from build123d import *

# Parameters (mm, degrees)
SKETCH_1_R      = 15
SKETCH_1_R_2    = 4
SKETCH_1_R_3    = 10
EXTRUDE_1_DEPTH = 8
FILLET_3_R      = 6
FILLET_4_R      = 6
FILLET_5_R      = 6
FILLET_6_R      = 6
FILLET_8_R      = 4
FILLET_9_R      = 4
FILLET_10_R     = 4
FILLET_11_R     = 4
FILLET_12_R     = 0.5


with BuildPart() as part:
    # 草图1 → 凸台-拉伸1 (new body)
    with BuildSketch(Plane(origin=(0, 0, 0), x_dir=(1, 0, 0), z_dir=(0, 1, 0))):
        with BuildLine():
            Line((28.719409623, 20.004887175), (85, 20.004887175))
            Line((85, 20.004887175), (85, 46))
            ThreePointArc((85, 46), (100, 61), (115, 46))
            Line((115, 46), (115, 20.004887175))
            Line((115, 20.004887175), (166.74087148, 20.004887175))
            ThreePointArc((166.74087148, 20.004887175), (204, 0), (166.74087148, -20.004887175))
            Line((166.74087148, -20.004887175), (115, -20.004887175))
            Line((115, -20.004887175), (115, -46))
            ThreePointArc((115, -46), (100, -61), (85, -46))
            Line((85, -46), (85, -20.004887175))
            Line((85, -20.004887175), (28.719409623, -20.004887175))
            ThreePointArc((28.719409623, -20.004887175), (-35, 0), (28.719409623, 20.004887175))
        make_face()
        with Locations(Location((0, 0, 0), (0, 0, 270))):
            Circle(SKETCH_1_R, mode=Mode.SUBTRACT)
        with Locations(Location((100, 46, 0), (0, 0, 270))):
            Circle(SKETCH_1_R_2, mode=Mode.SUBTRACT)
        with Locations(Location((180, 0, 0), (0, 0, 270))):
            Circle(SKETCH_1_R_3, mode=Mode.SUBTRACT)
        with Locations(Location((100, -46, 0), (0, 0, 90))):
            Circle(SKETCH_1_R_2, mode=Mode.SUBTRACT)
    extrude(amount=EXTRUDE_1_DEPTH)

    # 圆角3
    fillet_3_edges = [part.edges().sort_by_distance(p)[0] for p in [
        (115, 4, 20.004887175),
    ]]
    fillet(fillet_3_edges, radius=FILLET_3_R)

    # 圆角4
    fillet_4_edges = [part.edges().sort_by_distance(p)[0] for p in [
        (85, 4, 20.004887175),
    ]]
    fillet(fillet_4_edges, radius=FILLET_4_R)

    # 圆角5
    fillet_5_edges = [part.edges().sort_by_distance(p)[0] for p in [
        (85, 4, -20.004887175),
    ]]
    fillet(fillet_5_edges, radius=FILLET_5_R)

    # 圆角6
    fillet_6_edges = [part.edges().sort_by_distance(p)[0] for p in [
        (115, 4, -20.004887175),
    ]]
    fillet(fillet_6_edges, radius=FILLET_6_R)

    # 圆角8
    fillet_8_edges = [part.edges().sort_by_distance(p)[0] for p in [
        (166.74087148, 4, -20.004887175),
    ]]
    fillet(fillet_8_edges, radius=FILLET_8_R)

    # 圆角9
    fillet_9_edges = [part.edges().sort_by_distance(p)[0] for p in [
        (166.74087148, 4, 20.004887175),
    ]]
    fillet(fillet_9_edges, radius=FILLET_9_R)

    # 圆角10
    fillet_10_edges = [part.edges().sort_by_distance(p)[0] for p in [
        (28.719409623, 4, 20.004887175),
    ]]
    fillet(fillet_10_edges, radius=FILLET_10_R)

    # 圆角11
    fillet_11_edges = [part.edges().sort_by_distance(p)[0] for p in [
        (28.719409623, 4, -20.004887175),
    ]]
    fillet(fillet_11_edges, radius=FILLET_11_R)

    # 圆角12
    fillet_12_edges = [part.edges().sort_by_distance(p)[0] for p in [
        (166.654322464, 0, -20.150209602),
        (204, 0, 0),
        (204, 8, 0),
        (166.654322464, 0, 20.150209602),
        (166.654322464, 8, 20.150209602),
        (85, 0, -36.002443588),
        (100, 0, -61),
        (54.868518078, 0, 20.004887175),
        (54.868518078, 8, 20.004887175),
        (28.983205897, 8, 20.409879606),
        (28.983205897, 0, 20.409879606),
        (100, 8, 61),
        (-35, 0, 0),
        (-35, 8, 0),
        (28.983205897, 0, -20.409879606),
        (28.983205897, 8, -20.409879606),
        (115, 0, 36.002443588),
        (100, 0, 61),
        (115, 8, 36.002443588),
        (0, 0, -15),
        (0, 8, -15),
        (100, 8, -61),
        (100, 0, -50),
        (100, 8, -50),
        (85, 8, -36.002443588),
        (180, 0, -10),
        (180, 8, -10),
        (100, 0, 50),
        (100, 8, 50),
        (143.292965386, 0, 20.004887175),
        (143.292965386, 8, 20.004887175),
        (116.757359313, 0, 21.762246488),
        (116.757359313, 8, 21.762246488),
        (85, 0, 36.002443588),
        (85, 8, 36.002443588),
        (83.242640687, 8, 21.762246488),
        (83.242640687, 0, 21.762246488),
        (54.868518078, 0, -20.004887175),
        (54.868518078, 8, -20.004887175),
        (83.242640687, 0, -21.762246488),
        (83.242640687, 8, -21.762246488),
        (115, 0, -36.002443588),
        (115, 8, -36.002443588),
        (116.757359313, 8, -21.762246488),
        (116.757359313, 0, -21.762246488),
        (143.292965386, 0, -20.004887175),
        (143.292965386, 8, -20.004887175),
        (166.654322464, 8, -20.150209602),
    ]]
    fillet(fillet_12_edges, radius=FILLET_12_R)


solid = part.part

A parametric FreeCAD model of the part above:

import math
import FreeCAD as App
import Part
import Sketcher
from FreeCAD import Vector


def edges_at(feature, points):
    """Names of the edges that pass closest to the given points."""
    edges = feature.Shape.Edges
    near = lambda p: min(range(len(edges)), key=lambda i: edges[i].distToShape(Part.Vertex(*p))[0])
    return sorted({f"Edge{near(p) + 1}" for p in points})

doc = App.newDocument("Part")
body = doc.addObject("PartDesign::Body", "Body")

# Sketch on XZ plane
sketch1 = doc.addObject("Sketcher::SketchObject", "Sketch")
body.addObject(sketch1)
sketch1.AttachmentSupport = (doc.XZ_Plane, [""])
sketch1.MapMode = "FlatFace"
sketch1.addGeometry([
    Part.LineSegment(Vector(85, -20, 0), Vector(28.7, -20, 0)),  # 0
    Part.ArcOfCircle(Part.Circle(Vector(0, 0, 0), Vector(0, 0, 1), 35), math.radians(35), math.radians(325)),  # 1
    Part.LineSegment(Vector(28.7, 20, 0), Vector(85, 20, 0)),  # 2
    Part.LineSegment(Vector(85, 20, 0), Vector(85, 46, 0)),  # 3
    Part.ArcOfCircle(Part.Circle(Vector(100, 46, 0), Vector(0, 0, 1), 15), math.radians(0), math.radians(180)),  # 4
    Part.LineSegment(Vector(115, 46, 0), Vector(115, 20, 0)),  # 5
    Part.LineSegment(Vector(115, 20, 0), Vector(166.7, 20, 0)),  # 6
    Part.ArcOfCircle(Part.Circle(Vector(180, 0, 0), Vector(0, 0, 1), 24), math.radians(-124), math.radians(124)),  # 7
    Part.LineSegment(Vector(166.7, -20, 0), Vector(115, -20, 0)),  # 8
    Part.LineSegment(Vector(115, -20, 0), Vector(115, -46, 0)),  # 9
    Part.ArcOfCircle(Part.Circle(Vector(100, -46, 0), Vector(0, 0, 1), 15), math.radians(180), math.radians(360)),  # 10
    Part.LineSegment(Vector(85, -46, 0), Vector(85, -20, 0)),  # 11
    Part.Circle(Vector(100, 46, 0), Vector(0, 0, 1), 4),  # 12
    Part.Circle(Vector(180, 0, 0), Vector(0, 0, 1), 10),  # 13
    Part.Circle(Vector(100, -46, 0), Vector(0, 0, 1), 4),  # 14
    Part.Circle(Vector(0, 0, 0), Vector(0, 0, 1), 15),  # 15
], False)
sketch1.addConstraint([
    Sketcher.Constraint("Coincident", 0, 2, 1, 2),
    Sketcher.Constraint("Coincident", 1, 1, 2, 1),
    Sketcher.Constraint("Coincident", 2, 2, 3, 1),
    Sketcher.Constraint("Tangent", 3, 2, 4, 2),
    Sketcher.Constraint("Tangent", 4, 1, 5, 1),
    Sketcher.Constraint("Coincident", 5, 2, 6, 1),
    Sketcher.Constraint("Coincident", 6, 2, 7, 2),
    Sketcher.Constraint("Coincident", 7, 1, 8, 1),
    Sketcher.Constraint("Coincident", 8, 2, 9, 1),
    Sketcher.Constraint("Tangent", 9, 2, 10, 2),
    Sketcher.Constraint("Tangent", 10, 1, 11, 1),
    Sketcher.Constraint("Coincident", 11, 2, 0, 1),
    Sketcher.Constraint("Horizontal", 0),
    Sketcher.Constraint("Horizontal", 2),
    Sketcher.Constraint("Vertical", 3),
    Sketcher.Constraint("Vertical", 5),
    Sketcher.Constraint("Horizontal", 6),
    Sketcher.Constraint("Horizontal", 8),
    Sketcher.Constraint("Vertical", 9),
    Sketcher.Constraint("Vertical", 11),
    Sketcher.Constraint("Coincident", 1, 3, -1, 1),
    Sketcher.Constraint("Coincident", 15, 3, -1, 1),
    Sketcher.Constraint("Coincident", 12, 3, 4, 3),
    Sketcher.Constraint("Coincident", 13, 3, 7, 3),
    Sketcher.Constraint("Coincident", 14, 3, 10, 3),
    Sketcher.Constraint("Equal", 4, 10),
    Sketcher.Constraint("Equal", 12, 14),
    Sketcher.Constraint("Equal", 10, 15),
    Sketcher.Constraint("Symmetric", 4, 3, 10, 3, -1),
    Sketcher.Constraint("Symmetric", 6, 2, 7, 1, -1),
    Sketcher.Constraint("Horizontal", 2, 2, 5, 2),
    Sketcher.Constraint("Horizontal", 0, 2, 7, 1),
    Sketcher.Constraint("Diameter", 12, 8.0),
    Sketcher.Constraint("Diameter", 13, 20.0),
    Sketcher.Constraint("Diameter", 15, 30.0),
    Sketcher.Constraint("Radius", 1, 35.0),
    Sketcher.Constraint("Radius", 7, 24.0),
    Sketcher.Constraint("DistanceX", -1, 1, 4, 3, 100.0),
    Sketcher.Constraint("DistanceY", -1, 1, 4, 3, 46.0),
    Sketcher.Constraint("DistanceX", -1, 1, 7, 3, 180.0),
    Sketcher.Constraint("DistanceX", 0, 2, 0, 1, 56.28059),
])
pad1 = doc.addObject("PartDesign::Pad", "Pad")
body.addObject(pad1)
pad1.Profile = sketch1
pad1.Length = 8
pad1.Reversed = True
doc.recompute()

fillet = doc.addObject("PartDesign::Fillet", "Fillet")
body.addObject(fillet)
fillet.Base = (pad1, edges_at(pad1, [(115, 4, 20.005)]))
fillet.Radius = 6
doc.recompute()

fillet2 = doc.addObject("PartDesign::Fillet", "Fillet001")
body.addObject(fillet2)
fillet2.Base = (fillet, edges_at(fillet, [(85, 4, 20.005)]))
fillet2.Radius = 6
doc.recompute()

fillet3 = doc.addObject("PartDesign::Fillet", "Fillet002")
body.addObject(fillet3)
fillet3.Base = (fillet2, edges_at(fillet2, [(85, 4, -20.005)]))
fillet3.Radius = 6
doc.recompute()

fillet4 = doc.addObject("PartDesign::Fillet", "Fillet003")
body.addObject(fillet4)
fillet4.Base = (fillet3, edges_at(fillet3, [(115, 4, -20.005)]))
fillet4.Radius = 6
doc.recompute()

fillet5 = doc.addObject("PartDesign::Fillet", "Fillet004")
body.addObject(fillet5)
fillet5.Base = (fillet4, edges_at(fillet4, [(166.741, 4, -20.005)]))
fillet5.Radius = 4
doc.recompute()

fillet6 = doc.addObject("PartDesign::Fillet", "Fillet005")
body.addObject(fillet6)
fillet6.Base = (fillet5, edges_at(fillet5, [(166.741, 4, 20.005)]))
fillet6.Radius = 4
doc.recompute()

fillet7 = doc.addObject("PartDesign::Fillet", "Fillet006")
body.addObject(fillet7)
fillet7.Base = (fillet6, edges_at(fillet6, [(28.719, 4, 20.005)]))
fillet7.Radius = 4
doc.recompute()

fillet8 = doc.addObject("PartDesign::Fillet", "Fillet007")
body.addObject(fillet8)
fillet8.Base = (fillet7, edges_at(fillet7, [(28.719, 4, -20.005)]))
fillet8.Radius = 4
doc.recompute()

fillet9 = doc.addObject("PartDesign::Fillet", "Fillet008")
body.addObject(fillet9)
fillet9.Base = (fillet8, edges_at(fillet8, [
    (166.654, 0, -20.15),
    (204, 0, 0),
    (204, 8, 0),
    (166.654, 0, 20.15),
    (166.654, 8, 20.15),
    (85, 0, -36.002),
    (100, 0, -61),
    (54.869, 0, 20.005),
    (54.869, 8, 20.005),
    (28.983, 8, 20.41),
    (28.983, 0, 20.41),
    (100, 8, 61),
    (-35, 0, 0),
    (-35, 8, 0),
    (28.983, 0, -20.41),
    (28.983, 8, -20.41),
    (115, 0, 36.002),
    (100, 0, 61),
    (115, 8, 36.002),
    (0, 0, -15),
    (0, 8, -15),
    (100, 8, -61),
    (100, 0, -50),
    (100, 8, -50),
    (85, 8, -36.002),
    (180, 0, -10),
    (180, 8, -10),
    (100, 0, 50),
    (100, 8, 50),
    (143.293, 0, 20.005),
    (143.293, 8, 20.005),
    (116.757, 0, 21.762),
    (116.757, 8, 21.762),
    (85, 0, 36.002),
    (85, 8, 36.002),
    (83.243, 8, 21.762),
    (83.243, 0, 21.762),
    (54.869, 0, -20.005),
    (54.869, 8, -20.005),
    (83.243, 0, -21.762),
    (83.243, 8, -21.762),
    (115, 0, -36.002),
    (115, 8, -36.002),
    (116.757, 8, -21.762),
    (116.757, 0, -21.762),
    (143.293, 0, -20.005),
    (143.293, 8, -20.005),
    (166.654, 8, -20.15),
]))
fillet9.Radius = 0.5

doc.recompute()
